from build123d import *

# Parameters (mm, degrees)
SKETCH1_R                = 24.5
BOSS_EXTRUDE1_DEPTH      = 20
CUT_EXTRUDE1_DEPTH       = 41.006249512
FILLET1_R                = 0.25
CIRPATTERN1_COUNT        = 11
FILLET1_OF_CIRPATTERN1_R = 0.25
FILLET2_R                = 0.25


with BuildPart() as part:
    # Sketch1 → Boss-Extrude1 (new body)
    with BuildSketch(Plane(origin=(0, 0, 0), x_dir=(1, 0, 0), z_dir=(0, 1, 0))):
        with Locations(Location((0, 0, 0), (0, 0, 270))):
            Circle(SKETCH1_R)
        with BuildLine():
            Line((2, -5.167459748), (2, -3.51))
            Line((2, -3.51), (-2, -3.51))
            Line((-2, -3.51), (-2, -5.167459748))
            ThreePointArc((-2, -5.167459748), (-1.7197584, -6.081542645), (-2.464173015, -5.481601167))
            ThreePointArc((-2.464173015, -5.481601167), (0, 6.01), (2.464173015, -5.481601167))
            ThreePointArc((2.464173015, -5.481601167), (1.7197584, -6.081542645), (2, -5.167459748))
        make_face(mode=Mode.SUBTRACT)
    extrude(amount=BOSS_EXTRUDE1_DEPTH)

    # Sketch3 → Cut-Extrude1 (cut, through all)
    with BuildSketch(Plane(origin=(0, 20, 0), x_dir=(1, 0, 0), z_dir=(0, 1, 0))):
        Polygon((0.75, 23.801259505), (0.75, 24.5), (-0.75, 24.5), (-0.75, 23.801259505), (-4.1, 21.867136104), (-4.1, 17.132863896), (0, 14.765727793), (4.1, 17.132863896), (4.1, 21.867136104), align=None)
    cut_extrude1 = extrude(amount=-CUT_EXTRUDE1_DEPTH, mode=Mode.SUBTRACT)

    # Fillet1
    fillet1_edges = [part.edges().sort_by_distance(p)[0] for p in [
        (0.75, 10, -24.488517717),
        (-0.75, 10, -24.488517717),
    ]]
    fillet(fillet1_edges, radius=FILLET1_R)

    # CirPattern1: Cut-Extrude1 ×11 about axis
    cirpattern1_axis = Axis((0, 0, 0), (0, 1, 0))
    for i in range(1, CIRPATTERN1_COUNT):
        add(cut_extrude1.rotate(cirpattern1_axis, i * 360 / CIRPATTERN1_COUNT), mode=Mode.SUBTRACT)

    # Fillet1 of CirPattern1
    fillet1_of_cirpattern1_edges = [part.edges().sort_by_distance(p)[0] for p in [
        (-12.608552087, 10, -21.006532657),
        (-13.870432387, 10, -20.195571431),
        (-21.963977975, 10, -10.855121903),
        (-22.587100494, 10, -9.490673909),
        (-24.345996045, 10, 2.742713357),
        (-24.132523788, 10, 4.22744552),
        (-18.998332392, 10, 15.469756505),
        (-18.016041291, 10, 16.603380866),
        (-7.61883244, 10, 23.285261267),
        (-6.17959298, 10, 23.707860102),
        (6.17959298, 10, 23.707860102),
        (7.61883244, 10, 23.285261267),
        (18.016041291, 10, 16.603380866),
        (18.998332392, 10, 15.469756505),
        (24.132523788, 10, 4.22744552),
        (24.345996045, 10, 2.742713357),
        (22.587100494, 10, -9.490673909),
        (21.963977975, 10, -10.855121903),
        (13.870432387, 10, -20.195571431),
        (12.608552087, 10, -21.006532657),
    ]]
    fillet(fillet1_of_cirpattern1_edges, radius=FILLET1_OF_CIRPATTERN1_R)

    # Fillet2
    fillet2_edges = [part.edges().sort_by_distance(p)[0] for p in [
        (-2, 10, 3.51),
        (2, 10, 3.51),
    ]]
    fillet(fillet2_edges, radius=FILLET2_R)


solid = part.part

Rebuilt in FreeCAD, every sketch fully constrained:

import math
import FreeCAD as App
import Part
import Sketcher
Q = App.Units.Quantity


def edges_at(feature, points):
    """Names of the edges that pass closest to the given points."""
    edges = feature.Shape.Edges
    near = lambda p: min(range(len(edges)), key=lambda i: edges[i].distToShape(Part.Vertex(*p))[0])
    return sorted({f"Edge{near(p) + 1}" for p in points})

doc = App.newDocument("Part")
body = doc.addObject("PartDesign::Body", "Body")

sketch1 = doc.addObject("Sketcher::SketchObject", "Sketch")
body.addObject(sketch1)
sketch1.AttachmentSupport = (doc.XZ_Plane, [""])
sketch1.MapMode = "FlatFace"
sketch1.addGeometry(Part.Circle(App.Vector(0, 0, 0), App.Vector(0, 0, 1), 24.5), False)
sketch1.addGeometry(Part.ArcOfCircle(Part.Circle(App.Vector(2, 5.66746, 0), App.Vector(0, 0, 1), 0.5), math.radians(-21.821558), math.radians(270)), False)
sketch1.addGeometry(Part.LineSegment(App.Vector(2, 5.16746, 0), App.Vector(2, 3.51, 0)), False)
sketch1.addGeometry(Part.LineSegment(App.Vector(2, 3.51, 0), App.Vector(-2, 3.51, 0)), False)
sketch1.addGeometry(Part.LineSegment(App.Vector(-2, 3.51, 0), App.Vector(-2, 5.16746, 0)), False)
sketch1.addGeometry(Part.ArcOfCircle(Part.Circle(App.Vector(-2, 5.66746, 0), App.Vector(0, 0, 1), 0.5), math.radians(-90), math.radians(201.821558)), False)
sketch1.addGeometry(Part.ArcOfCircle(Part.Circle(App.Vector(0, 0, 0), App.Vector(0, 0, 1), 6.01), math.radians(114.205598), math.radians(425.794402)), False)
sketch1.addConstraint(Sketcher.Constraint("Coincident", 1, 2, 2, 1))
sketch1.addConstraint(Sketcher.Constraint("Coincident", 2, 2, 3, 1))
sketch1.addConstraint(Sketcher.Constraint("Coincident", 3, 2, 4, 1))
sketch1.addConstraint(Sketcher.Constraint("Coincident", 4, 2, 5, 1))
sketch1.addConstraint(Sketcher.Constraint("Coincident", 5, 2, 6, 1))
sketch1.addConstraint(Sketcher.Constraint("Coincident", 6, 2, 1, 1))
sketch1.addConstraint(Sketcher.Constraint("Vertical", 2))
sketch1.addConstraint(Sketcher.Constraint("Horizontal", 3))
sketch1.addConstraint(Sketcher.Constraint("Vertical", 4))
sketch1.addConstraint(Sketcher.Constraint("Coincident", 0, 3, -1, 1))
sketch1.addConstraint(Sketcher.Constraint("Coincident", 6, 3, -1, 1))
sketch1.addConstraint(Sketcher.Constraint("Equal", 1, 5))
sketch1.addConstraint(Sketcher.Constraint("Symmetric", 1, 3, 5, 3, -2))
sketch1.addConstraint(Sketcher.Constraint("Vertical", 5, 3, 3, 2))
sketch1.addConstraint(Sketcher.Constraint("Diameter", 0, Q("49 mm")))
sketch1.addConstraint(Sketcher.Constraint("Radius", 1, Q("0.5 mm")))
sketch1.addConstraint(Sketcher.Constraint("DistanceX", 3, 2, 3, 1, Q("4 mm")))
sketch1.addConstraint(Sketcher.Constraint("Radius", 6, Q("6.01 mm")))
sketch1.addConstraint(Sketcher.Constraint("DistanceX", -1, 1, 1, 3, Q("2 mm")))
sketch1.addConstraint(Sketcher.Constraint("DistanceY", -1, 1, 2, 2, Q("3.51 mm")))
sketch1.addConstraint(Sketcher.Constraint("DistanceY", 2, 2, 2, 1, Q("1.65746 mm")))
pad1 = doc.addObject("PartDesign::Pad", "Pad")
body.addObject(pad1)
pad1.Profile = sketch1
pad1.Length = 20
pad1.Reversed = True

sketch2 = doc.addObject("Sketcher::SketchObject", "Sketch001")
body.addObject(sketch2)
sketch2.AttachmentSupport = (doc.XZ_Plane, [""])
sketch2.MapMode = "FlatFace"
sketch2.AttachmentOffset = App.Placement(App.Vector(0, 0, -20), App.Rotation())
sketch2.addGeometry(Part.LineSegment(App.Vector(0.75, -23.80126, 0), App.Vector(0.75, -24.5, 0)), False)
sketch2.addGeometry(Part.LineSegment(App.Vector(0.75, -24.5, 0), App.Vector(-0.75, -24.5, 0)), False)
sketch2.addGeometry(Part.LineSegment(App.Vector(-0.75, -24.5, 0), App.Vector(-0.75, -23.80126, 0)), False)
sketch2.addGeometry(Part.LineSegment(App.Vector(-0.75, -23.80126, 0), App.Vector(-4.1, -21.867136, 0)), False)
sketch2.addGeometry(Part.LineSegment(App.Vector(-4.1, -21.867136, 0), App.Vector(-4.1, -17.132864, 0)), False)
sketch2.addGeometry(Part.LineSegment(App.Vector(-4.1, -17.132864, 0), App.Vector(0, -14.765728, 0)), False)
sketch2.addGeometry(Part.LineSegment(App.Vector(0, -14.765728, 0), App.Vector(4.1, -17.132864, 0)), False)
sketch2.addGeometry(Part.LineSegment(App.Vector(4.1, -17.132864, 0), App.Vector(4.1, -21.867136, 0)), False)
sketch2.addGeometry(Part.LineSegment(App.Vector(4.1, -21.867136, 0), App.Vector(0.75, -23.80126, 0)), False)
sketch2.addConstraint(Sketcher.Constraint("Coincident", 0, 2, 1, 1))
sketch2.addConstraint(Sketcher.Constraint("Coincident", 1, 2, 2, 1))
sketch2.addConstraint(Sketcher.Constraint("Coincident", 2, 2, 3, 1))
sketch2.addConstraint(Sketcher.Constraint("Coincident", 3, 2, 4, 1))
sketch2.addConstraint(Sketcher.Constraint("Coincident", 4, 2, 5, 1))
sketch2.addConstraint(Sketcher.Constraint("Coincident", 5, 2, 6, 1))
sketch2.addConstraint(Sketcher.Constraint("Coincident", 6, 2, 7, 1))
sketch2.addConstraint(Sketcher.Constraint("Coincident", 7, 2, 8, 1))
sketch2.addConstraint(Sketcher.Constraint("Coincident", 8, 2, 0, 1))
sketch2.addConstraint(Sketcher.Constraint("Vertical", 0))
sketch2.addConstraint(Sketcher.Constraint("Horizontal", 1))
sketch2.addConstraint(Sketcher.Constraint("Vertical", 2))
sketch2.addConstraint(Sketcher.Constraint("Vertical", 4))
sketch2.addConstraint(Sketcher.Constraint("Vertical", 7))
sketch2.addConstraint(Sketcher.Constraint("Symmetric", 4, 2, 6, 2, -2))
sketch2.addConstraint(Sketcher.Constraint("Symmetric", 2, 2, 8, 2, -2))
sketch2.addConstraint(Sketcher.Constraint("PointOnObject", 5, 2, -2))
sketch2.addConstraint(Sketcher.Constraint("Parallel", 3, 6))
sketch2.addConstraint(Sketcher.Constraint("Parallel", 5, 8))
sketch2.addConstraint(Sketcher.Constraint("Angle", 3, Q("150 deg")))
sketch2.addConstraint(Sketcher.Constraint("DistanceX", 1, 2, 1, 1, Q("1.5 mm")))
sketch2.addConstraint(Sketcher.Constraint("DistanceY", 0, 2, -1, 1, Q("24.5 mm")))
sketch2.addConstraint(Sketcher.Constraint("DistanceX", 3, 2, -1, 1, Q("4.1 mm")))
sketch2.addConstraint(Sketcher.Constraint("DistanceY", 0, 2, 0, 1, Q("0.69874 mm")))
sketch2.addConstraint(Sketcher.Constraint("DistanceY", 4, 1, 4, 2, Q("4.734272 mm")))
pocket1 = doc.addObject("PartDesign::Pocket", "Pocket")
body.addObject(pocket1)
pocket1.Profile = sketch2
pocket1.Type = "ThroughAll"
pocket1.Reversed = True
doc.recompute()

fillet = doc.addObject("PartDesign::Fillet", "Fillet")
body.addObject(fillet)
fillet.Base = (pocket1, edges_at(pocket1, [(0.75, 10, -24.489), (-0.75, 10, -24.489)]))
fillet.Radius = 0.25
doc.recompute()

polarpattern = doc.addObject("PartDesign::PolarPattern", "PolarPattern")
body.addObject(polarpattern)
polarpattern.Originals = [pocket1]
polarpattern.Axis = (doc.Y_Axis, [""])
polarpattern.Angle = 360
polarpattern.Occurrences = 11
body.Tip = polarpattern
doc.recompute()

fillet2 = doc.addObject("PartDesign::Fillet", "Fillet001")
body.addObject(fillet2)
fillet2.Base = (polarpattern, edges_at(polarpattern, [
    (-12.609, 10, -21.007),
    (-13.87, 10, -20.196),
    (-21.964, 10, -10.855),
    (-22.587, 10, -9.491),
    (-24.346, 10, 2.743),
    (-24.133, 10, 4.227),
    (-18.998, 10, 15.47),
    (-18.016, 10, 16.603),
    (-7.619, 10, 23.285),
    (-6.18, 10, 23.708),
    (6.18, 10, 23.708),
    (7.619, 10, 23.285),
    (18.016, 10, 16.603),
    (18.998, 10, 15.47),
    (24.133, 10, 4.227),
    (24.346, 10, 2.743),
    (22.587, 10, -9.491),
    (21.964, 10, -10.855),
    (13.87, 10, -20.196),
    (12.609, 10, -21.007),
]))
fillet2.Radius = 0.25
doc.recompute()

fillet3 = doc.addObject("PartDesign::Fillet", "Fillet002")
body.addObject(fillet3)
fillet3.Base = (fillet2, edges_at(fillet2, [(-2, 10, 3.51), (2, 10, 3.51)]))
fillet3.Radius = 0.25

doc.recompute()
